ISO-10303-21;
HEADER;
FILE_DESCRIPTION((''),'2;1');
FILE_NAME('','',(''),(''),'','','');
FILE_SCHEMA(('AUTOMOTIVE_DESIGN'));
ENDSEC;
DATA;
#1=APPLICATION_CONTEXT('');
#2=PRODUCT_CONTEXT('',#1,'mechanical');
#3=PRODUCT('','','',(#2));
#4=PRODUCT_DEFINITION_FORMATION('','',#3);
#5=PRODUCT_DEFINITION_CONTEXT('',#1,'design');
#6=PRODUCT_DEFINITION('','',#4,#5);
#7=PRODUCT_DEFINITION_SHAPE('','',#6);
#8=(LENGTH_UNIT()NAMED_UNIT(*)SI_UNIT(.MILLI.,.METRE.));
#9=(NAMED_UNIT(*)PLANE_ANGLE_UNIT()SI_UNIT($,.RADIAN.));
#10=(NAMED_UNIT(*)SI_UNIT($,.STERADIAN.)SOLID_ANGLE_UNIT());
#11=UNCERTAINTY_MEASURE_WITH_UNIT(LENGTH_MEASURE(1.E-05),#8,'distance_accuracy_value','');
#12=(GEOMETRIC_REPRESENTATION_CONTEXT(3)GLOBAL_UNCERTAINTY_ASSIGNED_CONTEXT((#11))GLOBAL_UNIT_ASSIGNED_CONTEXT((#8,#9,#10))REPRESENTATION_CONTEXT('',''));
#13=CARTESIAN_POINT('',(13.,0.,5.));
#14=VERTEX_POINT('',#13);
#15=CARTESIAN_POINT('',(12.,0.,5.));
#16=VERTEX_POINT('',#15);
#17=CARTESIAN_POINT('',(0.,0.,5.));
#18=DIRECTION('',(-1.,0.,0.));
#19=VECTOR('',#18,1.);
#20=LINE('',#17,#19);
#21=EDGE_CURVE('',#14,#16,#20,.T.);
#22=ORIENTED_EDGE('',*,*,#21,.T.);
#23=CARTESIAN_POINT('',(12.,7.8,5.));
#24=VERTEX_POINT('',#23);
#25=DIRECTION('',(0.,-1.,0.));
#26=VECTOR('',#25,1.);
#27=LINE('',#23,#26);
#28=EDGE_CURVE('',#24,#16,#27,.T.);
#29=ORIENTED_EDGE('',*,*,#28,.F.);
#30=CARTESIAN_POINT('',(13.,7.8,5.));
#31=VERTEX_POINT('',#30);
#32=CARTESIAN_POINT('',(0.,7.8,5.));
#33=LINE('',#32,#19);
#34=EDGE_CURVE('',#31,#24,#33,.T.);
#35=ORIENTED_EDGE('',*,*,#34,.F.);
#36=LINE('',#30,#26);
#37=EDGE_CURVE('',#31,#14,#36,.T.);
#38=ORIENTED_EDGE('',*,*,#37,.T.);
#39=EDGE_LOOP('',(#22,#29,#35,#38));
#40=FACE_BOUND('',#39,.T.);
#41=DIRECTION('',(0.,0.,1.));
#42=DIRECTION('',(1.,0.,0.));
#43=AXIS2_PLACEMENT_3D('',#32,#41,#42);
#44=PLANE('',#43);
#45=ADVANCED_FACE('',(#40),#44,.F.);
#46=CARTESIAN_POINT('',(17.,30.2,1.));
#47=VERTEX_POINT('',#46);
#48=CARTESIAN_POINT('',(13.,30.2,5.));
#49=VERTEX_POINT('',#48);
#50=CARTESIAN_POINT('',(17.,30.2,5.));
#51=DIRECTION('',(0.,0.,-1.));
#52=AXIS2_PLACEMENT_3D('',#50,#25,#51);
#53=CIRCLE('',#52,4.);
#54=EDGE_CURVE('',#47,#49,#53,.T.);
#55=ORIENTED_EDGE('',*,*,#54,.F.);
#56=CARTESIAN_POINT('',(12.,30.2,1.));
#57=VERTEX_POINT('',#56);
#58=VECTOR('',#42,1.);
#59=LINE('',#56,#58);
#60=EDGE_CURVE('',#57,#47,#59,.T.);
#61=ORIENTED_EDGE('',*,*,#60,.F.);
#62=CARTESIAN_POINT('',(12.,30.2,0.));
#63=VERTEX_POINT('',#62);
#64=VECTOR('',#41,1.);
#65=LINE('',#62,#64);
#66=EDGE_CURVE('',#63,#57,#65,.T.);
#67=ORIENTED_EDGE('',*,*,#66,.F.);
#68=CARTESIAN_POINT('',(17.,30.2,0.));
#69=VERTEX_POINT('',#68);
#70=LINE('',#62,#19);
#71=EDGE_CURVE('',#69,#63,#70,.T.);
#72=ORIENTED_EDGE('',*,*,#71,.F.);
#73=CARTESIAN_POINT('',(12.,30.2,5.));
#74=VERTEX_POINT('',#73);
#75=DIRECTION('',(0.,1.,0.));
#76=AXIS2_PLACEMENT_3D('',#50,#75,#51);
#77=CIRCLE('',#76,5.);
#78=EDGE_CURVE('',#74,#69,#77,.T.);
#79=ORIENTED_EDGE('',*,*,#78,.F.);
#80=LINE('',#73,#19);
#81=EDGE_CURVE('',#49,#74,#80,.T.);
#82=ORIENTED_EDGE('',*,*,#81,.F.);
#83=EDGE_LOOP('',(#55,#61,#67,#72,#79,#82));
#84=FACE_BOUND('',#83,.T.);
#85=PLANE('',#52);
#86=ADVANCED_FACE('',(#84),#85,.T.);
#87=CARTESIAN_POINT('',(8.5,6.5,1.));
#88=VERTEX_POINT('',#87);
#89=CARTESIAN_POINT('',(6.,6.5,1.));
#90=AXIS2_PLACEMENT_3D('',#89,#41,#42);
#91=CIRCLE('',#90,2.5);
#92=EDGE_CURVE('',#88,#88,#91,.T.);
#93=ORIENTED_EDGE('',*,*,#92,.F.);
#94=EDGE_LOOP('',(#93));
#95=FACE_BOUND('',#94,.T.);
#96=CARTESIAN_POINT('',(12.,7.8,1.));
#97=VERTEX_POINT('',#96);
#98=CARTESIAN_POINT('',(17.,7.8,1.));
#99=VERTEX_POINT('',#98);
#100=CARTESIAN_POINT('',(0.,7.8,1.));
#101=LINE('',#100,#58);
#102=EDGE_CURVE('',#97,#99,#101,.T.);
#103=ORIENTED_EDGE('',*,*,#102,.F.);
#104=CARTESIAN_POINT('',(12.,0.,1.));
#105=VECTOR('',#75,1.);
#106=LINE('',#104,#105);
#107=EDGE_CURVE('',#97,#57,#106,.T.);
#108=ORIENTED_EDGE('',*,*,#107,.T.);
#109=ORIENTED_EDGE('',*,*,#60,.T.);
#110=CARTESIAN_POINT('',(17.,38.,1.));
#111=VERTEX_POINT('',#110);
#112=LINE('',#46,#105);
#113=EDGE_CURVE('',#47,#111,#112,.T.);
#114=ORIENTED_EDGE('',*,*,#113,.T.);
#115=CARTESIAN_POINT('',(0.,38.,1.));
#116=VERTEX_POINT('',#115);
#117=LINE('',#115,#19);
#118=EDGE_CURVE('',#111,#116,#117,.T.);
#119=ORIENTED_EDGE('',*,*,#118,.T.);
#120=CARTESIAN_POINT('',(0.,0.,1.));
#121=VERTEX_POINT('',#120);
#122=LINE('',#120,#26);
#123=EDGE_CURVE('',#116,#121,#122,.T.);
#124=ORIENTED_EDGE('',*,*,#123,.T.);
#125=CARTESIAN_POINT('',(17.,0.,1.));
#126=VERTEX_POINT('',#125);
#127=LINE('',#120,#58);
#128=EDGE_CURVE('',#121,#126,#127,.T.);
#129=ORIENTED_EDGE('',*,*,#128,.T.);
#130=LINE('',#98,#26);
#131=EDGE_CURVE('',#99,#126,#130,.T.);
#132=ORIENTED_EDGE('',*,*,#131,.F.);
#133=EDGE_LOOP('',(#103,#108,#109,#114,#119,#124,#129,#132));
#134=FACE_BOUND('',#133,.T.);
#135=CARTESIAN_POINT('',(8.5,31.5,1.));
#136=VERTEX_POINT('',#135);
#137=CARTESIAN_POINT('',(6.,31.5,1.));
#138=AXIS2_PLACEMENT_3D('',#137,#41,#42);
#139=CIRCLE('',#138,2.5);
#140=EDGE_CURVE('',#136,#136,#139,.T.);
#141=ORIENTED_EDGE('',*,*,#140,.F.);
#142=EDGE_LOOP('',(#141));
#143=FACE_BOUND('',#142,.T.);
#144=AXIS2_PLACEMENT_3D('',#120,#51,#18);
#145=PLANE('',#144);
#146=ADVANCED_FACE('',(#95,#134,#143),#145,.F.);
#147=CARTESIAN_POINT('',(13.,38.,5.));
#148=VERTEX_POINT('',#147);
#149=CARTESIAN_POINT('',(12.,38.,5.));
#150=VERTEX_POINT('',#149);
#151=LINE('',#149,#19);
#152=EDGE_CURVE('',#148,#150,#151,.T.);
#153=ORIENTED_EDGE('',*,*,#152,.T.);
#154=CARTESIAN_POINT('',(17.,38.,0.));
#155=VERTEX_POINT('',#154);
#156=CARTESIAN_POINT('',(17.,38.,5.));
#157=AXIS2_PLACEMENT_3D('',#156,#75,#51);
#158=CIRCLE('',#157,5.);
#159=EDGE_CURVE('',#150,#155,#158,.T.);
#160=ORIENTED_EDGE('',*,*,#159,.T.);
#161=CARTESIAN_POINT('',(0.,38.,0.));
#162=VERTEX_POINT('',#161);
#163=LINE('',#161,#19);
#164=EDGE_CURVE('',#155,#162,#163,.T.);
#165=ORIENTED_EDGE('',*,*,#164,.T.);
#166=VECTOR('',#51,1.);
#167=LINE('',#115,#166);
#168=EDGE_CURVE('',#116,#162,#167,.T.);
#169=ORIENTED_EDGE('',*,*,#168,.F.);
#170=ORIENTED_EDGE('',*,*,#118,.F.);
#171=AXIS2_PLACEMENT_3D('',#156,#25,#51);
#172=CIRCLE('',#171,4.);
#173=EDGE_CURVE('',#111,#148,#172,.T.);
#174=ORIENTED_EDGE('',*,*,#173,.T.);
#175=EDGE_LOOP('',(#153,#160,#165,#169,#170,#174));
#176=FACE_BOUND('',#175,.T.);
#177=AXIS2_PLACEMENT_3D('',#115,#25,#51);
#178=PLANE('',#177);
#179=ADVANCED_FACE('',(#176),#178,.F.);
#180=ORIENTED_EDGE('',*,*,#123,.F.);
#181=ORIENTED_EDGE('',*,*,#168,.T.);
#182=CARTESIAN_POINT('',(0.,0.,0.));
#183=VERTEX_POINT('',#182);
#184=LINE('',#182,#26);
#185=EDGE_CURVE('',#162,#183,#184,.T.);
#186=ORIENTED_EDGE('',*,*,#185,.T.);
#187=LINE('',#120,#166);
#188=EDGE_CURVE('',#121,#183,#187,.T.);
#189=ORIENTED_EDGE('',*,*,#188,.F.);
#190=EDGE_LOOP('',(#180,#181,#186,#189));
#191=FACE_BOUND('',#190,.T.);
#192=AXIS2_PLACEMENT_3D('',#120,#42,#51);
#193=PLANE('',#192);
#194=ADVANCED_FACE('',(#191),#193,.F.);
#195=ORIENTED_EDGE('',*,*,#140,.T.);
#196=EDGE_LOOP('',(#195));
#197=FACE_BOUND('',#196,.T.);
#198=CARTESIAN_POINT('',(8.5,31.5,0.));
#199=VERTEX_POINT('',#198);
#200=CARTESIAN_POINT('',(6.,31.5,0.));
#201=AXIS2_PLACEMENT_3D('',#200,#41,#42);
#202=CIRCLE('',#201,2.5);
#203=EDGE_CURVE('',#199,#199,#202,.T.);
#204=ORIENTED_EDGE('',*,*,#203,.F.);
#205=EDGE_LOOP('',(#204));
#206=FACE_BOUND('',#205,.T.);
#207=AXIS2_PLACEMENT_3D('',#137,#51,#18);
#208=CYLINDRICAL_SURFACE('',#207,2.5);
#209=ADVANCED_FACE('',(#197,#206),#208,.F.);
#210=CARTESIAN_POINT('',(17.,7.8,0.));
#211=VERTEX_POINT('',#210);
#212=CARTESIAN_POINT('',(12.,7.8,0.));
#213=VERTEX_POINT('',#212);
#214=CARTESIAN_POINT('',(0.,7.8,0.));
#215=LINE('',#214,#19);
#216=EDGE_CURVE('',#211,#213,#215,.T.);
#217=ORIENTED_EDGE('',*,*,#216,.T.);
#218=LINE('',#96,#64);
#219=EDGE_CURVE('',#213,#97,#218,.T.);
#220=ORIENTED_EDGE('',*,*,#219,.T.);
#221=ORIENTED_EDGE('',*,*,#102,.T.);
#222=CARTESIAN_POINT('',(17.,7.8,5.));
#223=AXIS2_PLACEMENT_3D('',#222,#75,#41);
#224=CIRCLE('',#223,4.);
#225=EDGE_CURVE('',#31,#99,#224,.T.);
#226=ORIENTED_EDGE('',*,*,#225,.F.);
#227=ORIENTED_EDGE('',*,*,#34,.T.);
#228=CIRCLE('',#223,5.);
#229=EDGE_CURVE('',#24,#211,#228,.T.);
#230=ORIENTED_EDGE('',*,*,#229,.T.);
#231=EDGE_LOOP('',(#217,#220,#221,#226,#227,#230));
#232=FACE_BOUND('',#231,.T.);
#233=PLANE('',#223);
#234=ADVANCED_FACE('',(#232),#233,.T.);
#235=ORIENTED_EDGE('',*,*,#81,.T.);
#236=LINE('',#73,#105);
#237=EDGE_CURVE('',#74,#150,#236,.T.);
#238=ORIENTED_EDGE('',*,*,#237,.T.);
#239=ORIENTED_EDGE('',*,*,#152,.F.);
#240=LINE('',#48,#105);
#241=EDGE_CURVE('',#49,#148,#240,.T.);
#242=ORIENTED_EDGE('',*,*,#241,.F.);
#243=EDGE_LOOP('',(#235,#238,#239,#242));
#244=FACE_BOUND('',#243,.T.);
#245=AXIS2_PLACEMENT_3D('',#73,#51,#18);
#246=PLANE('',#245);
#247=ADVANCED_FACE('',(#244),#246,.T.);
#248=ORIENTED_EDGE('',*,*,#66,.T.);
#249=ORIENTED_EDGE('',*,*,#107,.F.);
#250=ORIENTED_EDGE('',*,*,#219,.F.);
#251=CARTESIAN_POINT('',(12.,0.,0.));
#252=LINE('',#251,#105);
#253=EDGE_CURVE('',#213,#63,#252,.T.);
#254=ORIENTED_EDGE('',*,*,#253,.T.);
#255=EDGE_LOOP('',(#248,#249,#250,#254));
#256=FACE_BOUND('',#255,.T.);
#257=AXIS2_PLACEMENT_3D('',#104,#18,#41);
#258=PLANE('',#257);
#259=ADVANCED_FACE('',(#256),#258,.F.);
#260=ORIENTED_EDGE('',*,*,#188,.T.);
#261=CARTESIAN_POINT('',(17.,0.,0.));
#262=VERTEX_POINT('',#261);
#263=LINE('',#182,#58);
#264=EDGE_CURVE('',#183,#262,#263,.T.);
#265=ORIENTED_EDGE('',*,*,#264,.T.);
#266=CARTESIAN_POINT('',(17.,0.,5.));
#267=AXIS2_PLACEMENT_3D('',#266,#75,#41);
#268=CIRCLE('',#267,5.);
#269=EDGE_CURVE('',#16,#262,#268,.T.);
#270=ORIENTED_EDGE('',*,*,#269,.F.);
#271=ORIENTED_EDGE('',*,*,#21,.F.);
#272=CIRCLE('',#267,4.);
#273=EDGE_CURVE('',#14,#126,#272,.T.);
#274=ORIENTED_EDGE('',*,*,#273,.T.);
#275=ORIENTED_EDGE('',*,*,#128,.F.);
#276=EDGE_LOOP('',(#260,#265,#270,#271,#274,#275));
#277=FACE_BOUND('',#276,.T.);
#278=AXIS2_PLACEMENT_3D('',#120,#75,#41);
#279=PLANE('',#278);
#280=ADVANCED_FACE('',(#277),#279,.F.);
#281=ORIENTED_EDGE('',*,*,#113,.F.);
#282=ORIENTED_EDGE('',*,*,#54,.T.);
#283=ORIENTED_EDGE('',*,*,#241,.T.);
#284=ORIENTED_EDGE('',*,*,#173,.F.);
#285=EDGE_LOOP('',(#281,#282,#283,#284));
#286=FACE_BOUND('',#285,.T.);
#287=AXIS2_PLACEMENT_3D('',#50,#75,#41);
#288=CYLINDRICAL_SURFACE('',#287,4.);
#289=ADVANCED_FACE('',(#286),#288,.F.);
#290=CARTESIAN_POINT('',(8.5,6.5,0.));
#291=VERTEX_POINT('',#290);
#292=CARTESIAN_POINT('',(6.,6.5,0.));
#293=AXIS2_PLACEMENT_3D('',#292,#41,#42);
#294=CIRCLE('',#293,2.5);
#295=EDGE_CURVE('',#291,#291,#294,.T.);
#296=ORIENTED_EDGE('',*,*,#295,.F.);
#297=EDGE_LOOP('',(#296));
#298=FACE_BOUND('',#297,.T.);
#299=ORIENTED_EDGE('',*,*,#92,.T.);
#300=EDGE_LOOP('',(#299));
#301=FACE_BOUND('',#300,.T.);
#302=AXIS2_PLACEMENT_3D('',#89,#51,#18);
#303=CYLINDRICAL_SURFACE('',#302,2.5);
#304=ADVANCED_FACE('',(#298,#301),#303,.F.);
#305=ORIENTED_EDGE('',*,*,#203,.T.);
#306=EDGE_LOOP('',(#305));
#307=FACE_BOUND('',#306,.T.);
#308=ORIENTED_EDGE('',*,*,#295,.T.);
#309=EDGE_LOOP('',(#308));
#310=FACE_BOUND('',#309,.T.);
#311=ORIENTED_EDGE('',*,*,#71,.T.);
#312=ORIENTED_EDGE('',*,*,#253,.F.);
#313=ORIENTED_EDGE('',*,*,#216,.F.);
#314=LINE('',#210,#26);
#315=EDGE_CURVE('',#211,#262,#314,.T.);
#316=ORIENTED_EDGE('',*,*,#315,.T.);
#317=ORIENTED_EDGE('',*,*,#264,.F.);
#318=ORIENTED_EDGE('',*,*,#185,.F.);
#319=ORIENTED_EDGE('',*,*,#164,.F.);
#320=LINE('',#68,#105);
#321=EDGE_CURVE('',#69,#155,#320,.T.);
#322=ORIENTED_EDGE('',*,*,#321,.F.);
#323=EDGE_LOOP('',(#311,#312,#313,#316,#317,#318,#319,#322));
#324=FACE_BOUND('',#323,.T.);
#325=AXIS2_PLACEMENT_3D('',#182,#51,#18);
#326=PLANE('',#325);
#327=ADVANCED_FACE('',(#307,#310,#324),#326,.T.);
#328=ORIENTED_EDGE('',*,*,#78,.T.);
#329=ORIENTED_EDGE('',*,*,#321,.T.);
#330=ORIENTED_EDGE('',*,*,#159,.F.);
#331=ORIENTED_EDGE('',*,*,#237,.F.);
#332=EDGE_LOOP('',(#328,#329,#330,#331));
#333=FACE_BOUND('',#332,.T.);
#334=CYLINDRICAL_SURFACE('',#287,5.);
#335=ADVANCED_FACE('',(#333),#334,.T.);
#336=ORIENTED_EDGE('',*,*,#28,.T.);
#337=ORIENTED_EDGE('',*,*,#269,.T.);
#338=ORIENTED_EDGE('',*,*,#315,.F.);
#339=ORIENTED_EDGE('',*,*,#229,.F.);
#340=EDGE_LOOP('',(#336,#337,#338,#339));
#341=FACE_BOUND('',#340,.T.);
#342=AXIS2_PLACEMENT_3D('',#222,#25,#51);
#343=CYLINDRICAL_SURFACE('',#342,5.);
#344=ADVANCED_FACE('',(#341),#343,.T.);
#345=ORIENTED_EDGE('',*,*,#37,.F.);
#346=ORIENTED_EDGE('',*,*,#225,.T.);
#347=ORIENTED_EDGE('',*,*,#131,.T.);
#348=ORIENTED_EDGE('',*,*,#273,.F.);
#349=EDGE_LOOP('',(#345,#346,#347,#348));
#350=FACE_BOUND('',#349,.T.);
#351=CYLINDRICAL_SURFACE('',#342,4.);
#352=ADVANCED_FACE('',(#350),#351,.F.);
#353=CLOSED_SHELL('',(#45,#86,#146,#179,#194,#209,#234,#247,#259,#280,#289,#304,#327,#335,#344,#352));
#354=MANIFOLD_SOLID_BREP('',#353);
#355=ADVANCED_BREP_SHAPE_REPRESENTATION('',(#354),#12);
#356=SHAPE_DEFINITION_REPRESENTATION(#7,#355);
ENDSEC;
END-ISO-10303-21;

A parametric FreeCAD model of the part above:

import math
import FreeCAD as App
import Part
import Sketcher
from FreeCAD import Vector

doc = App.newDocument("Part")
body = doc.addObject("PartDesign::Body", "Body")

# Sketch on XY plane
sketch1 = body.newObject("Sketcher::SketchObject", "Sketch")
sketch1.AttachmentSupport = (doc.getObject("XY_Plane"), [""])
sketch1.MapMode = "FlatFace"
sketch1.addGeometry([
    Part.LineSegment(Vector(0, 38, 0), Vector(0, 0, 0)),  # 0
    Part.LineSegment(Vector(0, 0, 0), Vector(12, 0, 0)),  # 1
    Part.LineSegment(Vector(12, 0, 0), Vector(12, 38, 0)),  # 2
    Part.LineSegment(Vector(12, 38, 0), Vector(0, 38, 0)),  # 3
    Part.Circle(Vector(6, 6.5, 0), Vector(0, 0, 1), 2.5),  # 4
    Part.Circle(Vector(6, 31.5, 0), Vector(0, 0, 1), 2.5),  # 5
], False)
sketch1.addConstraint([
    Sketcher.Constraint("Coincident", 0, 2, 1, 1),
    Sketcher.Constraint("Coincident", 1, 2, 2, 1),
    Sketcher.Constraint("Coincident", 2, 2, 3, 1),
    Sketcher.Constraint("Coincident", 3, 2, 0, 1),
    Sketcher.Constraint("Vertical", 0),
    Sketcher.Constraint("Horizontal", 1),
    Sketcher.Constraint("Vertical", 2),
    Sketcher.Constraint("Horizontal", 3),
    Sketcher.Constraint("Coincident", 0, 2, -1, 1),
    Sketcher.Constraint("Equal", 4, 5),
    Sketcher.Constraint("Vertical", 4, 3, 5, 3),
    Sketcher.Constraint("Diameter", 4, 5.0),
    Sketcher.Constraint("DistanceX", 1, 1, 1, 2, 12.0),
    Sketcher.Constraint("DistanceY", 0, 2, 0, 1, 38.0),
    Sketcher.Constraint("DistanceX", -1, 1, 4, 3, 6.0),
    Sketcher.Constraint("DistanceY", 4, 3, 5, 3, 25.0),
    Sketcher.Constraint("DistanceY", -1, 1, 4, 3, 6.5),
])
pad1 = body.newObject("PartDesign::Pad", "Pad")
pad1.Profile = sketch1
pad1.Length = 1

# Sketch on XZ plane
sketch2 = body.newObject("Sketcher::SketchObject", "Sketch001")
sketch2.AttachmentSupport = (doc.getObject("XZ_Plane"), [""])
sketch2.MapMode = "FlatFace"
sketch2.AttachmentOffset = App.Placement(Vector(0, 0, -38), App.Rotation())
sketch2.addGeometry([
    Part.LineSegment(Vector(17, 0, 0), Vector(12, 0, 0)),  # 0
    Part.LineSegment(Vector(12, 0, 0), Vector(12, 1, 0)),  # 1
    Part.LineSegment(Vector(12, 1, 0), Vector(17, 1, 0)),  # 2
    Part.ArcOfCircle(Part.Circle(Vector(17, 5, 0), Vector(0, 0, 1), 4), math.radians(-90), math.radians(180)),  # 3
    Part.LineSegment(Vector(13, 5, 0), Vector(12, 5, 0)),  # 4
    Part.ArcOfCircle(Part.Circle(Vector(17, 5, 0), Vector(0, 0, 1), 5), math.radians(-90), math.radians(180)),  # 5
], False)
sketch2.addConstraint([
    Sketcher.Constraint("Coincident", 0, 2, 1, 1),
    Sketcher.Constraint("Coincident", 1, 2, 2, 1),
    Sketcher.Constraint("Tangent", 2, 2, 3, 1),
    Sketcher.Constraint("Coincident", 3, 2, 4, 1),
    Sketcher.Constraint("Coincident", 4, 2, 5, 2),
    Sketcher.Constraint("Tangent", 5, 1, 0, 1),
    Sketcher.Constraint("Horizontal", 0),
    Sketcher.Constraint("Vertical", 1),
    Sketcher.Constraint("Horizontal", 2),
    Sketcher.Constraint("Horizontal", 4),
    Sketcher.Constraint("Coincident", 5, 3, 3, 3),
    Sketcher.Constraint("PointOnObject", 0, 2, -1),
    Sketcher.Constraint("Horizontal", 5, 3, 3, 2),
    Sketcher.Constraint("Vertical", 1, 2, 4, 2),
    Sketcher.Constraint("Radius", 3, 4.0),
    Sketcher.Constraint("Radius", 5, 5.0),
    Sketcher.Constraint("DistanceX", -1, 1, 3, 3, 17.0),
])
pad2 = body.newObject("PartDesign::Pad", "Pad001")
pad2.Profile = sketch2
pad2.Length = 7.8

# Sketch on XZ plane
sketch3 = body.newObject("Sketcher::SketchObject", "Sketch002")
sketch3.AttachmentSupport = (doc.getObject("XZ_Plane"), [""])
sketch3.MapMode = "FlatFace"
sketch3.AttachmentOffset = App.Placement(Vector(0, 0, -7.8), App.Rotation())
sketch3.addGeometry([
    Part.LineSegment(Vector(17, 0, 0), Vector(12, 0, 0)),  # 0
    Part.LineSegment(Vector(12, 0, 0), Vector(12, 1, 0)),  # 1
    Part.LineSegment(Vector(12, 1, 0), Vector(17, 1, 0)),  # 2
    Part.ArcOfCircle(Part.Circle(Vector(17, 5, 0), Vector(0, 0, 1), 4), math.radians(-90), math.radians(180)),  # 3
    Part.LineSegment(Vector(13, 5, 0), Vector(12, 5, 0)),  # 4
    Part.ArcOfCircle(Part.Circle(Vector(17, 5, 0), Vector(0, 0, 1), 5), math.radians(-90), math.radians(180)),  # 5
], False)
sketch3.addConstraint([
    Sketcher.Constraint("Coincident", 0, 2, 1, 1),
    Sketcher.Constraint("Coincident", 1, 2, 2, 1),
    Sketcher.Constraint("Tangent", 2, 2, 3, 1),
    Sketcher.Constraint("Coincident", 3, 2, 4, 1),
    Sketcher.Constraint("Coincident", 4, 2, 5, 2),
    Sketcher.Constraint("Tangent", 5, 1, 0, 1),
    Sketcher.Constraint("Horizontal", 0),
    Sketcher.Constraint("Vertical", 1),
    Sketcher.Constraint("Horizontal", 2),
    Sketcher.Constraint("Horizontal", 4),
    Sketcher.Constraint("Coincident", 5, 3, 3, 3),
    Sketcher.Constraint("PointOnObject", 0, 2, -1),
    Sketcher.Constraint("Horizontal", 5, 3, 3, 2),
    Sketcher.Constraint("Vertical", 1, 2, 4, 2),
    Sketcher.Constraint("Radius", 3, 4.0),
    Sketcher.Constraint("Radius", 5, 5.0),
    Sketcher.Constraint("DistanceX", -1, 1, 3, 3, 17.0),
])
pad3 = body.newObject("PartDesign::Pad", "Pad002")
pad3.Profile = sketch3
pad3.Length = 7.8

doc.recompute()
